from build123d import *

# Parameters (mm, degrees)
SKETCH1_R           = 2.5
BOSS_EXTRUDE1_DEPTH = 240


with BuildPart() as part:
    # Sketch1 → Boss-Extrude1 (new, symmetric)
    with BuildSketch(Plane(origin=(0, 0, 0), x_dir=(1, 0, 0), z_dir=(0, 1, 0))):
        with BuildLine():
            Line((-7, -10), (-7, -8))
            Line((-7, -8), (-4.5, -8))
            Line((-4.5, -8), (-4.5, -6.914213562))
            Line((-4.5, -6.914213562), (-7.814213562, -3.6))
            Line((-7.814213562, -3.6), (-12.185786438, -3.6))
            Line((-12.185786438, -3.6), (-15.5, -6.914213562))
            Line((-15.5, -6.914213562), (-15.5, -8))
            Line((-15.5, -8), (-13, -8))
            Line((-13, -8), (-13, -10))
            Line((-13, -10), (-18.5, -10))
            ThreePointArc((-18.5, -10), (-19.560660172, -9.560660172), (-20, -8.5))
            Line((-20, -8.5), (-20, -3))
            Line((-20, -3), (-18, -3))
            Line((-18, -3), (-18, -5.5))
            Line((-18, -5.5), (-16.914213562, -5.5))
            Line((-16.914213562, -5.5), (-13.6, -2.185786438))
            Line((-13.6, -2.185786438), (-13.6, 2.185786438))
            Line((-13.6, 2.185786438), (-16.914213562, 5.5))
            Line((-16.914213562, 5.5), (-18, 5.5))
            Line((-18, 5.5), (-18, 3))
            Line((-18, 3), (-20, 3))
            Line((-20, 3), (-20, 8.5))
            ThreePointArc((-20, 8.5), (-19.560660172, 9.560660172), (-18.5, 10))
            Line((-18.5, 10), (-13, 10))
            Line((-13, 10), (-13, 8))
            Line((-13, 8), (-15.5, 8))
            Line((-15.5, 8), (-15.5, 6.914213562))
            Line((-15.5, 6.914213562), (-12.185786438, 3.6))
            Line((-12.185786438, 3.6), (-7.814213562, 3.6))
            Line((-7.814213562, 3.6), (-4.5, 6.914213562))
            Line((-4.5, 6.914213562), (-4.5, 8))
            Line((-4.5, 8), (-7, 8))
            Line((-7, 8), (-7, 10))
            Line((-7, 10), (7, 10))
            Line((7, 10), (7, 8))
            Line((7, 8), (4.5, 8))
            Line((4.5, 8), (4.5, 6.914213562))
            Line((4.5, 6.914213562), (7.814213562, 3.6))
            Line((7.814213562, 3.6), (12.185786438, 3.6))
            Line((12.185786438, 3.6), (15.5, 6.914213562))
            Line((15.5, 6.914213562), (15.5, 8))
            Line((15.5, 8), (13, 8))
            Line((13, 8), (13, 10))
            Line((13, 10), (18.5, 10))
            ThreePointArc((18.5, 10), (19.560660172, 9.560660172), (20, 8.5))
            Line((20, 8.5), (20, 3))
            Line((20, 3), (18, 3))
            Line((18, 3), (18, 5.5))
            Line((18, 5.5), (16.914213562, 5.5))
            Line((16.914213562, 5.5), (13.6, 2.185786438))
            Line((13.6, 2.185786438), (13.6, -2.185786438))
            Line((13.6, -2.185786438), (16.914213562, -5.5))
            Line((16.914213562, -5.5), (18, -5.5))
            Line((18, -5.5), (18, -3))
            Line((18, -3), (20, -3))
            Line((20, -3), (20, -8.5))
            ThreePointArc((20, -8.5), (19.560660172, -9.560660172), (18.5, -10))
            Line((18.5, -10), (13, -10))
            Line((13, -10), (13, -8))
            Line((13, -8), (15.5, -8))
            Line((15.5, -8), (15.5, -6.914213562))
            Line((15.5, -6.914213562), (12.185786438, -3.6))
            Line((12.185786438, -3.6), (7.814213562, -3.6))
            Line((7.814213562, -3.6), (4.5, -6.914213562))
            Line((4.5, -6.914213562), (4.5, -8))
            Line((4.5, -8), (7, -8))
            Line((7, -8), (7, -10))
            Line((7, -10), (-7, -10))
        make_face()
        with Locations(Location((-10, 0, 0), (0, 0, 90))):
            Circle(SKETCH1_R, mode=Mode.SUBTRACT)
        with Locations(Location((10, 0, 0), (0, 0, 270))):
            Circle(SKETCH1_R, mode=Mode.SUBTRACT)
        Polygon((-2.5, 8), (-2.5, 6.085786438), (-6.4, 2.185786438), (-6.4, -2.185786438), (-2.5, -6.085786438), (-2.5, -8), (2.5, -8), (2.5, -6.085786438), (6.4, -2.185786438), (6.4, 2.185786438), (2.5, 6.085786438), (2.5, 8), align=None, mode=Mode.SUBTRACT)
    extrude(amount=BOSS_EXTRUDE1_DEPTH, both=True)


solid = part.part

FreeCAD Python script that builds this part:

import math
import FreeCAD as App
import Part
import Sketcher


def add_polygon(sketch, points):
    """Adds a closed chain of lines whose ends are joined by coincident constraints."""
    first, n = sketch.GeometryCount, len(points)
    for a, b in zip(points, points[1:] + points[:1]):
        sketch.addGeometry(Part.LineSegment(App.Vector(*a, 0), App.Vector(*b, 0)), False)
    for i in range(n):
        sketch.addConstraint(Sketcher.Constraint("Coincident", first + i, 2, first + (i + 1) % n, 1))

doc = App.newDocument("Part")
body = doc.addObject("PartDesign::Body", "Body")

# Sketch on XZ plane
sketch1 = doc.addObject("Sketcher::SketchObject", "Sketch")
body.addObject(sketch1)
sketch1.AttachmentSupport = (doc.XZ_Plane, [""])
sketch1.MapMode = "FlatFace"
sketch1.addGeometry(Part.LineSegment(App.Vector(-7, 8, 0), App.Vector(-7, 10, 0)), False)  # 0
sketch1.addGeometry(Part.LineSegment(App.Vector(-7, 10, 0), App.Vector(7, 10, 0)), False)  # 1
sketch1.addGeometry(Part.LineSegment(App.Vector(7, 10, 0), App.Vector(7, 8, 0)), False)  # 2
sketch1.addGeometry(Part.LineSegment(App.Vector(7, 8, 0), App.Vector(4.5, 8, 0)), False)  # 3
sketch1.addGeometry(Part.LineSegment(App.Vector(4.5, 8, 0), App.Vector(4.5, 6.9, 0)), False)  # 4
sketch1.addGeometry(Part.LineSegment(App.Vector(4.5, 6.9, 0), App.Vector(7.8, 3.6, 0)), False)  # 5
sketch1.addGeometry(Part.LineSegment(App.Vector(7.8, 3.6, 0), App.Vector(12.2, 3.6, 0)), False)  # 6
sketch1.addGeometry(Part.LineSegment(App.Vector(12.2, 3.6, 0), App.Vector(15.5, 6.9, 0)), False)  # 7
sketch1.addGeometry(Part.LineSegment(App.Vector(15.5, 6.9, 0), App.Vector(15.5, 8, 0)), False)  # 8
sketch1.addGeometry(Part.LineSegment(App.Vector(15.5, 8, 0), App.Vector(13, 8, 0)), False)  # 9
sketch1.addGeometry(Part.LineSegment(App.Vector(13, 8, 0), App.Vector(13, 10, 0)), False)  # 10
sketch1.addGeometry(Part.LineSegment(App.Vector(13, 10, 0), App.Vector(18.5, 10, 0)), False)  # 11
sketch1.addGeometry(Part.ArcOfCircle(Part.Circle(App.Vector(18.5, 8.5, 0), App.Vector(0, 0, 1), 1.5), math.radians(0), math.radians(90)), False)  # 12
sketch1.addGeometry(Part.LineSegment(App.Vector(20, 8.5, 0), App.Vector(20, 3, 0)), False)  # 13
sketch1.addGeometry(Part.LineSegment(App.Vector(20, 3, 0), App.Vector(18, 3, 0)), False)  # 14
sketch1.addGeometry(Part.LineSegment(App.Vector(18, 3, 0), App.Vector(18, 5.5, 0)), False)  # 15
sketch1.addGeometry(Part.LineSegment(App.Vector(18, 5.5, 0), App.Vector(16.9, 5.5, 0)), False)  # 16
sketch1.addGeometry(Part.LineSegment(App.Vector(16.9, 5.5, 0), App.Vector(13.6, 2.2, 0)), False)  # 17
sketch1.addGeometry(Part.LineSegment(App.Vector(13.6, 2.2, 0), App.Vector(13.6, -2.2, 0)), False)  # 18
sketch1.addGeometry(Part.LineSegment(App.Vector(13.6, -2.2, 0), App.Vector(16.9, -5.5, 0)), False)  # 19
sketch1.addGeometry(Part.LineSegment(App.Vector(16.9, -5.5, 0), App.Vector(18, -5.5, 0)), False)  # 20
sketch1.addGeometry(Part.LineSegment(App.Vector(18, -5.5, 0), App.Vector(18, -3, 0)), False)  # 21
sketch1.addGeometry(Part.LineSegment(App.Vector(18, -3, 0), App.Vector(20, -3, 0)), False)  # 22
sketch1.addGeometry(Part.LineSegment(App.Vector(20, -3, 0), App.Vector(20, -8.5, 0)), False)  # 23
sketch1.addGeometry(Part.ArcOfCircle(Part.Circle(App.Vector(18.5, -8.5, 0), App.Vector(0, 0, 1), 1.5), math.radians(-90), math.radians(0)), False)  # 24
sketch1.addGeometry(Part.LineSegment(App.Vector(18.5, -10, 0), App.Vector(13, -10, 0)), False)  # 25
sketch1.addGeometry(Part.LineSegment(App.Vector(13, -10, 0), App.Vector(13, -8, 0)), False)  # 26
sketch1.addGeometry(Part.LineSegment(App.Vector(13, -8, 0), App.Vector(15.5, -8, 0)), False)  # 27
sketch1.addGeometry(Part.LineSegment(App.Vector(15.5, -8, 0), App.Vector(15.5, -6.9, 0)), False)  # 28
sketch1.addGeometry(Part.LineSegment(App.Vector(15.5, -6.9, 0), App.Vector(12.2, -3.6, 0)), False)  # 29
sketch1.addGeometry(Part.LineSegment(App.Vector(12.2, -3.6, 0), App.Vector(7.8, -3.6, 0)), False)  # 30
sketch1.addGeometry(Part.LineSegment(App.Vector(7.8, -3.6, 0), App.Vector(4.5, -6.9, 0)), False)  # 31
sketch1.addGeometry(Part.LineSegment(App.Vector(4.5, -6.9, 0), App.Vector(4.5, -8, 0)), False)  # 32
sketch1.addGeometry(Part.LineSegment(App.Vector(4.5, -8, 0), App.Vector(7, -8, 0)), False)  # 33
sketch1.addGeometry(Part.LineSegment(App.Vector(7, -8, 0), App.Vector(7, -10, 0)), False)  # 34
sketch1.addGeometry(Part.LineSegment(App.Vector(7, -10, 0), App.Vector(-7, -10, 0)), False)  # 35
sketch1.addGeometry(Part.LineSegment(App.Vector(-7, -10, 0), App.Vector(-7, -8, 0)), False)  # 36
sketch1.addGeometry(Part.LineSegment(App.Vector(-7, -8, 0), App.Vector(-4.5, -8, 0)), False)  # 37
sketch1.addGeometry(Part.LineSegment(App.Vector(-4.5, -8, 0), App.Vector(-4.5, -6.9, 0)), False)  # 38
sketch1.addGeometry(Part.LineSegment(App.Vector(-4.5, -6.9, 0), App.Vector(-7.8, -3.6, 0)), False)  # 39
sketch1.addGeometry(Part.LineSegment(App.Vector(-7.8, -3.6, 0), App.Vector(-12.2, -3.6, 0)), False)  # 40
sketch1.addGeometry(Part.LineSegment(App.Vector(-12.2, -3.6, 0), App.Vector(-15.5, -6.9, 0)), False)  # 41
sketch1.addGeometry(Part.LineSegment(App.Vector(-15.5, -6.9, 0), App.Vector(-15.5, -8, 0)), False)  # 42
sketch1.addGeometry(Part.LineSegment(App.Vector(-15.5, -8, 0), App.Vector(-13, -8, 0)), False)  # 43
sketch1.addGeometry(Part.LineSegment(App.Vector(-13, -8, 0), App.Vector(-13, -10, 0)), False)  # 44
sketch1.addGeometry(Part.LineSegment(App.Vector(-13, -10, 0), App.Vector(-18.5, -10, 0)), False)  # 45
sketch1.addGeometry(Part.ArcOfCircle(Part.Circle(App.Vector(-18.5, -8.5, 0), App.Vector(0, 0, 1), 1.5), math.radians(180), math.radians(270)), False)  # 46
sketch1.addGeometry(Part.LineSegment(App.Vector(-20, -8.5, 0), App.Vector(-20, -3, 0)), False)  # 47
sketch1.addGeometry(Part.LineSegment(App.Vector(-20, -3, 0), App.Vector(-18, -3, 0)), False)  # 48
sketch1.addGeometry(Part.LineSegment(App.Vector(-18, -3, 0), App.Vector(-18, -5.5, 0)), False)  # 49
sketch1.addGeometry(Part.LineSegment(App.Vector(-18, -5.5, 0), App.Vector(-16.9, -5.5, 0)), False)  # 50
sketch1.addGeometry(Part.LineSegment(App.Vector(-16.9, -5.5, 0), App.Vector(-13.6, -2.2, 0)), False)  # 51
sketch1.addGeometry(Part.LineSegment(App.Vector(-13.6, -2.2, 0), App.Vector(-13.6, 2.2, 0)), False)  # 52
sketch1.addGeometry(Part.LineSegment(App.Vector(-13.6, 2.2, 0), App.Vector(-16.9, 5.5, 0)), False)  # 53
sketch1.addGeometry(Part.LineSegment(App.Vector(-16.9, 5.5, 0), App.Vector(-18, 5.5, 0)), False)  # 54
sketch1.addGeometry(Part.LineSegment(App.Vector(-18, 5.5, 0), App.Vector(-18, 3, 0)), False)  # 55
sketch1.addGeometry(Part.LineSegment(App.Vector(-18, 3, 0), App.Vector(-20, 3, 0)), False)  # 56
sketch1.addGeometry(Part.LineSegment(App.Vector(-20, 3, 0), App.Vector(-20, 8.5, 0)), False)  # 57
sketch1.addGeometry(Part.ArcOfCircle(Part.Circle(App.Vector(-18.5, 8.5, 0), App.Vector(0, 0, 1), 1.5), math.radians(90), math.radians(180)), False)  # 58
sketch1.addGeometry(Part.LineSegment(App.Vector(-18.5, 10, 0), App.Vector(-13, 10, 0)), False)  # 59
sketch1.addGeometry(Part.LineSegment(App.Vector(-13, 10, 0), App.Vector(-13, 8, 0)), False)  # 60
sketch1.addGeometry(Part.LineSegment(App.Vector(-13, 8, 0), App.Vector(-15.5, 8, 0)), False)  # 61
sketch1.addGeometry(Part.LineSegment(App.Vector(-15.5, 8, 0), App.Vector(-15.5, 6.9, 0)), False)  # 62
sketch1.addGeometry(Part.LineSegment(App.Vector(-15.5, 6.9, 0), App.Vector(-12.2, 3.6, 0)), False)  # 63
sketch1.addGeometry(Part.LineSegment(App.Vector(-12.2, 3.6, 0), App.Vector(-7.8, 3.6, 0)), False)  # 64
sketch1.addGeometry(Part.LineSegment(App.Vector(-7.8, 3.6, 0), App.Vector(-4.5, 6.9, 0)), False)  # 65
sketch1.addGeometry(Part.LineSegment(App.Vector(-4.5, 6.9, 0), App.Vector(-4.5, 8, 0)), False)  # 66
sketch1.addGeometry(Part.LineSegment(App.Vector(-4.5, 8, 0), App.Vector(-7, 8, 0)), False)  # 67
sketch1.addGeometry(Part.Circle(App.Vector(10, 0, 0), App.Vector(0, 0, 1), 2.5), False)  # 68
add_polygon(sketch1, [(-2.5, -8), (2.5, -8), (2.5, -6.1), (6.4, -2.2), (6.4, 2.2), (2.5, 6.1), (2.5, 8), (-2.5, 8), (-2.5, 6.1), (-6.4, 2.2), (-6.4, -2.2), (-2.5, -6.1)])  # lines 69-80
sketch1.addGeometry(Part.Circle(App.Vector(-10, 0, 0), App.Vector(0, 0, 1), 2.5), False)  # 81
sketch1.addConstraint([
    Sketcher.Constraint("Coincident", 0, 2, 1, 1),
    Sketcher.Constraint("Coincident", 1, 2, 2, 1),
    Sketcher.Constraint("Coincident", 2, 2, 3, 1),
    Sketcher.Constraint("Coincident", 3, 2, 4, 1),
    Sketcher.Constraint("Coincident", 4, 2, 5, 1),
    Sketcher.Constraint("Coincident", 5, 2, 6, 1),
    Sketcher.Constraint("Coincident", 6, 2, 7, 1),
    Sketcher.Constraint("Coincident", 7, 2, 8, 1),
    Sketcher.Constraint("Coincident", 8, 2, 9, 1),
    Sketcher.Constraint("Coincident", 9, 2, 10, 1),
    Sketcher.Constraint("Coincident", 10, 2, 11, 1),
    Sketcher.Constraint("Tangent", 11, 2, 12, 2),
    Sketcher.Constraint("Tangent", 12, 1, 13, 1),
    Sketcher.Constraint("Coincident", 13, 2, 14, 1),
    Sketcher.Constraint("Coincident", 14, 2, 15, 1),
    Sketcher.Constraint("Coincident", 15, 2, 16, 1),
    Sketcher.Constraint("Coincident", 16, 2, 17, 1),
    Sketcher.Constraint("Coincident", 17, 2, 18, 1),
    Sketcher.Constraint("Coincident", 18, 2, 19, 1),
    Sketcher.Constraint("Coincident", 19, 2, 20, 1),
    Sketcher.Constraint("Coincident", 20, 2, 21, 1),
    Sketcher.Constraint("Coincident", 21, 2, 22, 1),
    Sketcher.Constraint("Coincident", 22, 2, 23, 1),
    Sketcher.Constraint("Tangent", 23, 2, 24, 2),
    Sketcher.Constraint("Tangent", 24, 1, 25, 1),
    Sketcher.Constraint("Coincident", 25, 2, 26, 1),
    Sketcher.Constraint("Coincident", 26, 2, 27, 1),
    Sketcher.Constraint("Coincident", 27, 2, 28, 1),
    Sketcher.Constraint("Coincident", 28, 2, 29, 1),
    Sketcher.Constraint("Coincident", 29, 2, 30, 1),
    Sketcher.Constraint("Coincident", 30, 2, 31, 1),
    Sketcher.Constraint("Coincident", 31, 2, 32, 1),
    Sketcher.Constraint("Coincident", 32, 2, 33, 1),
    Sketcher.Constraint("Coincident", 33, 2, 34, 1),
    Sketcher.Constraint("Coincident", 34, 2, 35, 1),
    Sketcher.Constraint("Coincident", 35, 2, 36, 1),
    Sketcher.Constraint("Coincident", 36, 2, 37, 1),
    Sketcher.Constraint("Coincident", 37, 2, 38, 1),
    Sketcher.Constraint("Coincident", 38, 2, 39, 1),
    Sketcher.Constraint("Coincident", 39, 2, 40, 1),
    Sketcher.Constraint("Coincident", 40, 2, 41, 1),
    Sketcher.Constraint("Coincident", 41, 2, 42, 1),
    Sketcher.Constraint("Coincident", 42, 2, 43, 1),
    Sketcher.Constraint("Coincident", 43, 2, 44, 1),
    Sketcher.Constraint("Coincident", 44, 2, 45, 1),
    Sketcher.Constraint("Tangent", 45, 2, 46, 2),
    Sketcher.Constraint("Tangent", 46, 1, 47, 1),
    Sketcher.Constraint("Coincident", 47, 2, 48, 1),
    Sketcher.Constraint("Coincident", 48, 2, 49, 1),
    Sketcher.Constraint("Coincident", 49, 2, 50, 1),
    Sketcher.Constraint("Coincident", 50, 2, 51, 1),
    Sketcher.Constraint("Coincident", 51, 2, 52, 1),
    Sketcher.Constraint("Coincident", 52, 2, 53, 1),
    Sketcher.Constraint("Coincident", 53, 2, 54, 1),
    Sketcher.Constraint("Coincident", 54, 2, 55, 1),
    Sketcher.Constraint("Coincident", 55, 2, 56, 1),
    Sketcher.Constraint("Coincident", 56, 2, 57, 1),
    Sketcher.Constraint("Tangent", 57, 2, 58, 2),
    Sketcher.Constraint("Tangent", 58, 1, 59, 1),
    Sketcher.Constraint("Coincident", 59, 2, 60, 1),
    Sketcher.Constraint("Coincident", 60, 2, 61, 1),
    Sketcher.Constraint("Coincident", 61, 2, 62, 1),
    Sketcher.Constraint("Coincident", 62, 2, 63, 1),
    Sketcher.Constraint("Coincident", 63, 2, 64, 1),
    Sketcher.Constraint("Coincident", 64, 2, 65, 1),
    Sketcher.Constraint("Coincident", 65, 2, 66, 1),
    Sketcher.Constraint("Coincident", 66, 2, 67, 1),
    Sketcher.Constraint("Coincident", 67, 2, 0, 1),
    Sketcher.Constraint("Vertical", 0),
    Sketcher.Constraint("Horizontal", 1),
    Sketcher.Constraint("Vertical", 2),
    Sketcher.Constraint("Horizontal", 3),
    Sketcher.Constraint("Vertical", 4),
    Sketcher.Constraint("Horizontal", 6),
    Sketcher.Constraint("Vertical", 8),
    Sketcher.Constraint("Horizontal", 9),
    Sketcher.Constraint("Vertical", 10),
    Sketcher.Constraint("Horizontal", 11),
    Sketcher.Constraint("Vertical", 13),
    Sketcher.Constraint("Horizontal", 14),
    Sketcher.Constraint("Vertical", 15),
    Sketcher.Constraint("Horizontal", 16),
    Sketcher.Constraint("Vertical", 18),
    Sketcher.Constraint("Horizontal", 20),
    Sketcher.Constraint("Vertical", 21),
    Sketcher.Constraint("Horizontal", 22),
    Sketcher.Constraint("Vertical", 23),
    Sketcher.Constraint("Horizontal", 25),
    Sketcher.Constraint("Vertical", 26),
    Sketcher.Constraint("Horizontal", 27),
    Sketcher.Constraint("Vertical", 28),
    Sketcher.Constraint("Horizontal", 30),
    Sketcher.Constraint("Vertical", 32),
    Sketcher.Constraint("Horizontal", 33),
    Sketcher.Constraint("Vertical", 34),
    Sketcher.Constraint("Horizontal", 35),
    Sketcher.Constraint("Vertical", 36),
    Sketcher.Constraint("Horizontal", 37),
    Sketcher.Constraint("Vertical", 38),
    Sketcher.Constraint("Horizontal", 40),
    Sketcher.Constraint("Vertical", 42),
    Sketcher.Constraint("Horizontal", 43),
    Sketcher.Constraint("Vertical", 44),
    Sketcher.Constraint("Horizontal", 45),
    Sketcher.Constraint("Vertical", 47),
    Sketcher.Constraint("Horizontal", 48),
    Sketcher.Constraint("Vertical", 49),
    Sketcher.Constraint("Horizontal", 50),
    Sketcher.Constraint("Vertical", 52),
    Sketcher.Constraint("Horizontal", 54),
    Sketcher.Constraint("Vertical", 55),
    Sketcher.Constraint("Horizontal", 56),
    Sketcher.Constraint("Vertical", 57),
    Sketcher.Constraint("Horizontal", 59),
    Sketcher.Constraint("Vertical", 60),
    Sketcher.Constraint("Horizontal", 61),
    Sketcher.Constraint("Vertical", 62),
    Sketcher.Constraint("Horizontal", 64),
    Sketcher.Constraint("Vertical", 66),
    Sketcher.Constraint("Horizontal", 67),
    Sketcher.Constraint("Horizontal", 69),
    Sketcher.Constraint("Vertical", 70),
    Sketcher.Constraint("Vertical", 72),
    Sketcher.Constraint("Vertical", 74),
    Sketcher.Constraint("Horizontal", 75),
    Sketcher.Constraint("Vertical", 76),
    Sketcher.Constraint("Vertical", 78),
    Sketcher.Constraint("Vertical", 80),
    Sketcher.Constraint("Equal", 12, 24),
    Sketcher.Constraint("Equal", 24, 46),
    Sketcher.Constraint("Equal", 46, 58),
    Sketcher.Constraint("Equal", 68, 81),
    Sketcher.Constraint("Symmetric", 12, 3, 46, 3, -1, 1),
    Sketcher.Constraint("Symmetric", 24, 3, 58, 3, -1, 1),
    Sketcher.Constraint("Symmetric", 68, 3, 81, 3, -1, 1),
    Sketcher.Constraint("Symmetric", 0, 2, 34, 2, -1, 1),
    Sketcher.Constraint("Symmetric", 2, 2, 36, 2, -1, 1),
    Sketcher.Constraint("Symmetric", 4, 2, 38, 2, -1, 1),
    Sketcher.Constraint("Symmetric", 5, 2, 39, 2, -1, 1),
    Sketcher.Constraint("Symmetric", 7, 2, 41, 2, -1, 1),
    Sketcher.Constraint("Symmetric", 9, 2, 43, 2, -1, 1),
    Sketcher.Constraint("Symmetric", 14, 2, 48, 2, -1, 1),
    Sketcher.Constraint("Symmetric", 16, 2, 50, 2, -1, 1),
    Sketcher.Constraint("Symmetric", 17, 2, 51, 2, -1, 1),
    Sketcher.Constraint("Symmetric", 19, 2, 53, 2, -1, 1),
    Sketcher.Constraint("Symmetric", 21, 2, 55, 2, -1, 1),
    Sketcher.Constraint("Symmetric", 26, 2, 60, 2, -1, 1),
    Sketcher.Constraint("Symmetric", 28, 2, 62, 2, -1, 1),
    Sketcher.Constraint("Symmetric", 29, 2, 63, 2, -1, 1),
    Sketcher.Constraint("Symmetric", 31, 2, 65, 2, -1, 1),
    Sketcher.Constraint("Symmetric", 69, 2, 75, 2, -1, 1),
    Sketcher.Constraint("Symmetric", 71, 2, 77, 2, -1, 1),
    Sketcher.Constraint("Symmetric", 73, 2, 79, 2, -1, 1),
    Sketcher.Constraint("Symmetric", 24, 3, 46, 3, -2),
    Sketcher.Constraint("Symmetric", 33, 2, 36, 2, -2),
    Sketcher.Constraint("Symmetric", 31, 2, 38, 2, -2),
    Sketcher.Constraint("Symmetric", 30, 2, 39, 2, -2),
    Sketcher.Constraint("Symmetric", 28, 2, 41, 2, -2),
    Sketcher.Constraint("Symmetric", 26, 2, 43, 2, -2),
    Sketcher.Constraint("Symmetric", 21, 2, 48, 2, -2),
    Sketcher.Constraint("Symmetric", 19, 2, 50, 2, -2),
    Sketcher.Constraint("Symmetric", 73, 2, 76, 2, -2),
    Sketcher.Constraint("PointOnObject", 68, 3, -1),
    Sketcher.Constraint("Perpendicular", 5, 7),
    Sketcher.Constraint("Parallel", 7, 17),
    Sketcher.Constraint("Perpendicular", 17, 19),
    Sketcher.Constraint("Parallel", 19, 29),
    Sketcher.Constraint("Perpendicular", 29, 31),
    Sketcher.Constraint("Perpendicular", 39, 41),
    Sketcher.Constraint("Perpendicular", 51, 53),
    Sketcher.Constraint("Perpendicular", 63, 65),
    Sketcher.Constraint("Parallel", 65, 71),
    Sketcher.Constraint("Perpendicular", 71, 73),
    Sketcher.Constraint("Perpendicular", 73, 77),
    Sketcher.Constraint("Perpendicular", 77, 79),
    Sketcher.Constraint("Horizontal", 4, 2, 7, 2),
    Sketcher.Constraint("Horizontal", 3, 2, 8, 2),
    Sketcher.Constraint("Horizontal", 1, 2, 10, 2),
    Sketcher.Constraint("Horizontal", 61, 2, 66, 2),
    Sketcher.Constraint("Horizontal", 43, 2, 69, 2),
    Sketcher.Constraint("Horizontal", 51, 2, 71, 2),
    Sketcher.Constraint("Equal", 3, 9),
    Sketcher.Constraint("Equal", 56, 0),
    Sketcher.Constraint("Equal", 54, 4),
    Sketcher.Constraint("Equal", 59, 13),
    Sketcher.Constraint("Equal", 67, 15),
    Sketcher.Constraint("Equal", 64, 18),
    Sketcher.Constraint("Equal", 7, 17),
    Sketcher.Constraint("Diameter", 68, 5.0),
    Sketcher.Constraint("Radius", 12, 1.5),
    Sketcher.Constraint("DistanceX", 1, 1, 1, 2, 14.0),
    Sketcher.Constraint("DistanceX", 14, 2, 14, 1, 2.0),
    Sketcher.Constraint("DistanceX", 69, 1, 69, 2, 5.0),
    Sketcher.Constraint("DistanceX", 3, 2, 3, 1, 2.5),
    Sketcher.Constraint("DistanceX", 11, 1, 11, 2, 5.5),
    Sketcher.Constraint("DistanceX", -1, 1, 68, 3, 10.0),
    Sketcher.Constraint("DistanceY", -1, 1, 0, 2, 10.0),
    Sketcher.Constraint("DistanceY", -1, 1, 5, 2, 3.6),
    Sketcher.Constraint("DistanceX", -1, 1, 71, 2, 6.4),
    Sketcher.Constraint("DistanceX", 6, 1, 6, 2, 4.371573),
])
pad1 = doc.addObject("PartDesign::Pad", "Pad")
body.addObject(pad1)
pad1.Profile = sketch1
pad1.Length = 480
pad1.Midplane = True

doc.recompute()
